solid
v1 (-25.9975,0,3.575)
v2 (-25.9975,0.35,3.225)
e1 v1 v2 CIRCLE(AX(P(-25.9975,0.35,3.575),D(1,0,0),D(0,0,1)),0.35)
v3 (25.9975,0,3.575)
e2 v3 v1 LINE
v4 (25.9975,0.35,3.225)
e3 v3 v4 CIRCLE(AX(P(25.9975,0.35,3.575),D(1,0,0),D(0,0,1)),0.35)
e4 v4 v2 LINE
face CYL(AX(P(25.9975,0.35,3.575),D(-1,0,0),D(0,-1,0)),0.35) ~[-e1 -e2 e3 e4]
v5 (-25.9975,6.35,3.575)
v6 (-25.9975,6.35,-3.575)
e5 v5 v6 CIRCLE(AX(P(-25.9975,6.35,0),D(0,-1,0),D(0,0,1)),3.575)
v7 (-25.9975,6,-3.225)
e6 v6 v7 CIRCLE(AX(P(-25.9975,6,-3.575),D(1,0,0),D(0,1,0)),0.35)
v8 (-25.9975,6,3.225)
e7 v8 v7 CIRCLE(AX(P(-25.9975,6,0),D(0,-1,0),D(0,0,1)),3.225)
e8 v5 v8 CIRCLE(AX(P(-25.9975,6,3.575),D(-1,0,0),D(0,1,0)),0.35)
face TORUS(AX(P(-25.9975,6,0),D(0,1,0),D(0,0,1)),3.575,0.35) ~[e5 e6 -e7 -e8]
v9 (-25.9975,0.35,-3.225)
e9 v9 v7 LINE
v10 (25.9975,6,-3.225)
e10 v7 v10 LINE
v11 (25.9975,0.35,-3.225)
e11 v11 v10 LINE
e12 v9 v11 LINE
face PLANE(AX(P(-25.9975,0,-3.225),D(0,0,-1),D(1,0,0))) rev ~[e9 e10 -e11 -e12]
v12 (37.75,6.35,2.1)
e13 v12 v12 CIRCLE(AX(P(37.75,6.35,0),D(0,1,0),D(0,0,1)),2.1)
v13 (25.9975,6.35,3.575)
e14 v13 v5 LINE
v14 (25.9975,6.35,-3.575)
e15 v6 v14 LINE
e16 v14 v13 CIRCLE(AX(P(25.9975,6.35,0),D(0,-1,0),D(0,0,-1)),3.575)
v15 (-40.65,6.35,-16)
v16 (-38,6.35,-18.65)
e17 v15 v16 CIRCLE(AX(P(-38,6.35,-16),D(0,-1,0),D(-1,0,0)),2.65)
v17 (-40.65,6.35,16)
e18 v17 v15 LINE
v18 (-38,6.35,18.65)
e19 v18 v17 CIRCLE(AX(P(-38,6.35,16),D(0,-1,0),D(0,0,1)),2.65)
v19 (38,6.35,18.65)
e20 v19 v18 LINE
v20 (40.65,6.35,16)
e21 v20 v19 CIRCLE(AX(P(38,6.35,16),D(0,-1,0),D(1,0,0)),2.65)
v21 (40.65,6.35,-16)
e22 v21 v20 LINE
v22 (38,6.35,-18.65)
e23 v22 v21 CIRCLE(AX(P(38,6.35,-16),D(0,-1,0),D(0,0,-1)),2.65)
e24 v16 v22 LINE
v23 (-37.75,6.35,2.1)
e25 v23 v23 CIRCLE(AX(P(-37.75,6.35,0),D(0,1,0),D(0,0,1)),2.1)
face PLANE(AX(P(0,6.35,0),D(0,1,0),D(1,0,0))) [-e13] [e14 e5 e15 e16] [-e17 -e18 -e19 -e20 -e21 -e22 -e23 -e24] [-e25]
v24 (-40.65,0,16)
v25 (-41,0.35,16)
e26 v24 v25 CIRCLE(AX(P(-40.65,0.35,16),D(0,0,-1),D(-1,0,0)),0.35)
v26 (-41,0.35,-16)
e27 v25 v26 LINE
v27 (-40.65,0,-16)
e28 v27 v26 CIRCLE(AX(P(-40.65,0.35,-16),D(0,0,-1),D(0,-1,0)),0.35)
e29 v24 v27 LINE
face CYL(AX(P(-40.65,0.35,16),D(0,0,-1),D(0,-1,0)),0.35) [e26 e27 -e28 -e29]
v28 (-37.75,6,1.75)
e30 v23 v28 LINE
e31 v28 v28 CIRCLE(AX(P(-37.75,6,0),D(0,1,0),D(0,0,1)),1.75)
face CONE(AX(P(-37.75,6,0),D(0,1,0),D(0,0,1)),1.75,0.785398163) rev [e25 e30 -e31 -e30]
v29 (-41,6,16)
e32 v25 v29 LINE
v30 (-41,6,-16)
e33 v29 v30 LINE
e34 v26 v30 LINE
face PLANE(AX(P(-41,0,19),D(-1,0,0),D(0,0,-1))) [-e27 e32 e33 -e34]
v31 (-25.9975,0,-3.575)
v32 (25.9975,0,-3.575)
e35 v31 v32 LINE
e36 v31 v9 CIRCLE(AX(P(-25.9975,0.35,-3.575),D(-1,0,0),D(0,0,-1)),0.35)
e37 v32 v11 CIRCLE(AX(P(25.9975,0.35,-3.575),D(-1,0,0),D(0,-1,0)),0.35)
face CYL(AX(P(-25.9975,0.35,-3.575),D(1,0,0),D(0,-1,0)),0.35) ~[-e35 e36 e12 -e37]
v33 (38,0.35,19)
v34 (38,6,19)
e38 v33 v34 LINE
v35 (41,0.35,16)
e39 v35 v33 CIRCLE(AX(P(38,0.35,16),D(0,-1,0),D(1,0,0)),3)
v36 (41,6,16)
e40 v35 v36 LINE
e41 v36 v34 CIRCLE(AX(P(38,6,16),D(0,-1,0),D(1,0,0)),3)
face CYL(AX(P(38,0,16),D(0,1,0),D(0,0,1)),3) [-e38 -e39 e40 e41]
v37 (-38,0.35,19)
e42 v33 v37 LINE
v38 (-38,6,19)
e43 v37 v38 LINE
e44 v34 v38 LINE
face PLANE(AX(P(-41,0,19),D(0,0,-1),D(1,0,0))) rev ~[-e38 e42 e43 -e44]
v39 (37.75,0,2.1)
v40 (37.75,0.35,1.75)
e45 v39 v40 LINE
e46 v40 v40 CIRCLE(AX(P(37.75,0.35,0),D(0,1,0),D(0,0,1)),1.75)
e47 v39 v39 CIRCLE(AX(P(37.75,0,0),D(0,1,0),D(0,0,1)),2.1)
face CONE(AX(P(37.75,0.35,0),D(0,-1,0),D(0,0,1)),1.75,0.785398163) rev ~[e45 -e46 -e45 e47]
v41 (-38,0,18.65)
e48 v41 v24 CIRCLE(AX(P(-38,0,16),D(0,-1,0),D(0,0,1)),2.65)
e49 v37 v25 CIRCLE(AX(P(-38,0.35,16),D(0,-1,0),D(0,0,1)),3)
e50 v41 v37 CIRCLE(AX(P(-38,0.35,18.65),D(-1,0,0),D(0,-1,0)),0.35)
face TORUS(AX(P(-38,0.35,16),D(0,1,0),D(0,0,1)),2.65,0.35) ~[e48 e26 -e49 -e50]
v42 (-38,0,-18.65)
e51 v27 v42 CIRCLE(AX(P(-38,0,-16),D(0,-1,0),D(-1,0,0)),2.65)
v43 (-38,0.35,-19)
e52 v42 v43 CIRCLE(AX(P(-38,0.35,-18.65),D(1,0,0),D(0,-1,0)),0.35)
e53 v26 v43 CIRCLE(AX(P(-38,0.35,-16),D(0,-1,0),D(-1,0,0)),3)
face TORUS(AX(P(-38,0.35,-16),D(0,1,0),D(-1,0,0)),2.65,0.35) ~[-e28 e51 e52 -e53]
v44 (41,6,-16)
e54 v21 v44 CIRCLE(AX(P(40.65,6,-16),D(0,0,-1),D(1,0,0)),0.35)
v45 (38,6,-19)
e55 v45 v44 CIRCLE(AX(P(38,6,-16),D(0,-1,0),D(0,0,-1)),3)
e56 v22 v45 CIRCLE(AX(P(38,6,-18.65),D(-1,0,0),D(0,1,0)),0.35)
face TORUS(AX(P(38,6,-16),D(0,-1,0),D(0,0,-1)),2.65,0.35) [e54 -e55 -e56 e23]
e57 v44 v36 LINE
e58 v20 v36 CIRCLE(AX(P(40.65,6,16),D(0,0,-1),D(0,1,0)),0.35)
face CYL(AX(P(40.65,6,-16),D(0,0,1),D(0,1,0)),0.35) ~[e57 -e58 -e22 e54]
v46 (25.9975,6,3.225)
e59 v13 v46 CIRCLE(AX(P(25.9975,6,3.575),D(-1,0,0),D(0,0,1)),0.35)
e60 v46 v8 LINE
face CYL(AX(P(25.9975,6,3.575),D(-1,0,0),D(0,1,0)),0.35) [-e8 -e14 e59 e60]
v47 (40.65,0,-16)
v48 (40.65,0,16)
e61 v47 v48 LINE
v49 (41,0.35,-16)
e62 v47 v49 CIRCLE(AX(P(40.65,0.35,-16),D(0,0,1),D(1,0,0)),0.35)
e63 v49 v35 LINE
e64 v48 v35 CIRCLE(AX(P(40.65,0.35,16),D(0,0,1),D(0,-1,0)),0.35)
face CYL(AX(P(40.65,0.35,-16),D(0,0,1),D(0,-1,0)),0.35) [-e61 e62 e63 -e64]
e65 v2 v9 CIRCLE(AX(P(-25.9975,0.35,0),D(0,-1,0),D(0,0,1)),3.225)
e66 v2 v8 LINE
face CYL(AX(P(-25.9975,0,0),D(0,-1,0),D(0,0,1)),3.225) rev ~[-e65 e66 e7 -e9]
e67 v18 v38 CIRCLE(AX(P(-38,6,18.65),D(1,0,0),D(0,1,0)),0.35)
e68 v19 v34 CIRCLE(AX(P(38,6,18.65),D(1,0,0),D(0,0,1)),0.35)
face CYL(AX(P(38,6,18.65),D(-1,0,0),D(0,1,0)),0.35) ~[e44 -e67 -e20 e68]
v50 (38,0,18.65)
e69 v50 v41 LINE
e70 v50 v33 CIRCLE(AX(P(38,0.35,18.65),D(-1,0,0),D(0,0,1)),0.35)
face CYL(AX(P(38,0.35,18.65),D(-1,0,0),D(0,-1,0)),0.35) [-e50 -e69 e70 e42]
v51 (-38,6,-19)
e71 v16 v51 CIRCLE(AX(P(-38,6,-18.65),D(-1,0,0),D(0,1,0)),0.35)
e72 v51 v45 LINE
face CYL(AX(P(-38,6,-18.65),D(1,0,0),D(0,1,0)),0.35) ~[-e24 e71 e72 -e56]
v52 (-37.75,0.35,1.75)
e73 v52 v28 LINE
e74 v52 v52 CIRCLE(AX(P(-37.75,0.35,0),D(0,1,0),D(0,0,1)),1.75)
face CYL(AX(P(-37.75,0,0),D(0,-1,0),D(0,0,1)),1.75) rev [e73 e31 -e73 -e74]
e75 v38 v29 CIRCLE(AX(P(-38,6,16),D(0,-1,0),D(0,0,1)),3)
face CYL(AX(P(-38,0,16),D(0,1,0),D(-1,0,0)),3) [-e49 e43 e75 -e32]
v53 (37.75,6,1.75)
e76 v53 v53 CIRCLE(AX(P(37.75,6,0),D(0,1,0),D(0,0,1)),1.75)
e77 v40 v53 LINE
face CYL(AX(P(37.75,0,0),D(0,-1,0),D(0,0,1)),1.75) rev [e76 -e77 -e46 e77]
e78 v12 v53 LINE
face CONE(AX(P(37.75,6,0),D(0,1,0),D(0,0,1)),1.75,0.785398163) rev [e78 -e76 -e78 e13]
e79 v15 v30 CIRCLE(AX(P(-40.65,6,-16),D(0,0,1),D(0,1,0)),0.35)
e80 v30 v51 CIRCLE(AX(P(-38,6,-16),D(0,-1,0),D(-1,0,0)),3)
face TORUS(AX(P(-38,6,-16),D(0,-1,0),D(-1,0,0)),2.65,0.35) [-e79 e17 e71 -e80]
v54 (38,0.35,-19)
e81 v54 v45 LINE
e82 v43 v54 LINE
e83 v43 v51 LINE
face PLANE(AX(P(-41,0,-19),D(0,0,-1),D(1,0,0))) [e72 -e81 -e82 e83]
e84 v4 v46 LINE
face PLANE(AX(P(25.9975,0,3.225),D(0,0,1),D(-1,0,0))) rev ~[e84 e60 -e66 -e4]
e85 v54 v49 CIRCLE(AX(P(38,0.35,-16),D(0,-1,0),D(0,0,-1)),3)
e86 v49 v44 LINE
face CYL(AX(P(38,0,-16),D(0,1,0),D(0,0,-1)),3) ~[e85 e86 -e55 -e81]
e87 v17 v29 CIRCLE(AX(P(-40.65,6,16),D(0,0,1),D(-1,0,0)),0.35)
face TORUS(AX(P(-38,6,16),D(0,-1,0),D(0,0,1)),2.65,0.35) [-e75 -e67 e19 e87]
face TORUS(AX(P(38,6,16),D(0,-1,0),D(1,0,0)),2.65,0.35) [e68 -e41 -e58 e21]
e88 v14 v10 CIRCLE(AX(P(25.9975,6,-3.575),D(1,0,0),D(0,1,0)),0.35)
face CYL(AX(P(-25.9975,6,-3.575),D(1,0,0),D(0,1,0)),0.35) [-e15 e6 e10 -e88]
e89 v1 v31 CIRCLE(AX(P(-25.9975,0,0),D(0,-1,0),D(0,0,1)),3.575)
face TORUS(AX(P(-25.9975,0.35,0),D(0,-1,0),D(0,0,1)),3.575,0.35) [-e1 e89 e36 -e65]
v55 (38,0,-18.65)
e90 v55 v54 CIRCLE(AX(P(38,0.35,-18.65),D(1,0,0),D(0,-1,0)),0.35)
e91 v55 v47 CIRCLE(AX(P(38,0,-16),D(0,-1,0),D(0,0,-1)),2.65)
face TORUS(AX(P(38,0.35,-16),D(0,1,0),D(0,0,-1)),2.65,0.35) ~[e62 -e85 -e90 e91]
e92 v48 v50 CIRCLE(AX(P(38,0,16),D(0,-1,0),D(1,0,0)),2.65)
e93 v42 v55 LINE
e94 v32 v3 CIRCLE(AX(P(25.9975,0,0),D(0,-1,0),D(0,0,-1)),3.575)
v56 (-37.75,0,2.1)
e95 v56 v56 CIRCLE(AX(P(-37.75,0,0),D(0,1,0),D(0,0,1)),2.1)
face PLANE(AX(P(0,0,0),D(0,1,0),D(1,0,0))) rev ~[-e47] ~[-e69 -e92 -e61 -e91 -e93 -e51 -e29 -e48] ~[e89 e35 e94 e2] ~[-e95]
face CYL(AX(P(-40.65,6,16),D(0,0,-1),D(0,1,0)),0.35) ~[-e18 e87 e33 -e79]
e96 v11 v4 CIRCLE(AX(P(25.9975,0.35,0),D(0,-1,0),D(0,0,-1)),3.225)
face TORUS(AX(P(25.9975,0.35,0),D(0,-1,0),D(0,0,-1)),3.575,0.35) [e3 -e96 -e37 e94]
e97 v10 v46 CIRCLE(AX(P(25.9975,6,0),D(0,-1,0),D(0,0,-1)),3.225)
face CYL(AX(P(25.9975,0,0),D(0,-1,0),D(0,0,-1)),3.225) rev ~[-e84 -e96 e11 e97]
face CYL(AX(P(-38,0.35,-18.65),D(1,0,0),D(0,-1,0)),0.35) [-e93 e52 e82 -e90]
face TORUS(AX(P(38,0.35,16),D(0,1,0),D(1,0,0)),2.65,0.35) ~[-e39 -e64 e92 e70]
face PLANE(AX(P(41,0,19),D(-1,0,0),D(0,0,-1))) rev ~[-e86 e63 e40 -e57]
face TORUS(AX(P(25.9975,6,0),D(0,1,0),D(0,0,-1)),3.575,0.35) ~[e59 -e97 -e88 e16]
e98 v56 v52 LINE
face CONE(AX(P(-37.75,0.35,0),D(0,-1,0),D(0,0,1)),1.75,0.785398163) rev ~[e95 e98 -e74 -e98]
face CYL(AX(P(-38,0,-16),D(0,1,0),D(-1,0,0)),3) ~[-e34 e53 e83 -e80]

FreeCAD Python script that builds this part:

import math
import FreeCAD as App
import Part
import Sketcher


def edges_at(feature, points):
    """Names of the edges that pass closest to the given points."""
    edges = feature.Shape.Edges
    near = lambda p: min(range(len(edges)), key=lambda i: edges[i].distToShape(Part.Vertex(*p))[0])
    return sorted({f"Edge{near(p) + 1}" for p in points})

doc = App.newDocument("Part")
body = doc.addObject("PartDesign::Body", "Body")

sketch1 = body.newObject("Sketcher::SketchObject", "Sketch")
sketch1.AttachmentSupport = (doc.getObject("XZ_Plane"), [""])
sketch1.MapMode = "FlatFace"
sketch1.addGeometry([
    Part.LineSegment(App.Vector(-41, -19, 0), App.Vector(-41, 19, 0)),
    Part.LineSegment(App.Vector(-41, 19, 0), App.Vector(41, 19, 0)),
    Part.LineSegment(App.Vector(41, 19, 0), App.Vector(41, -19, 0)),
    Part.LineSegment(App.Vector(41, -19, 0), App.Vector(-41, -19, 0)),
    Part.Circle(App.Vector(-37.8, 0, 0), App.Vector(0, 0, 1), 1.8),
    Part.ArcOfCircle(Part.Circle(App.Vector(-26, 0, 0), App.Vector(0, 0, 1), 3.2), math.radians(90), math.radians(270)),
    Part.LineSegment(App.Vector(-26, -3.2, 0), App.Vector(26, -3.2, 0)),
    Part.ArcOfCircle(Part.Circle(App.Vector(26, 0, 0), App.Vector(0, 0, 1), 3.2), math.radians(-90), math.radians(90)),
    Part.LineSegment(App.Vector(26, 3.2, 0), App.Vector(-26, 3.2, 0)),
    Part.Circle(App.Vector(37.8, 0, 0), App.Vector(0, 0, 1), 1.8),
], False)
sketch1.addConstraint([
    Sketcher.Constraint("Coincident", 0, 2, 1, 1),
    Sketcher.Constraint("Coincident", 1, 2, 2, 1),
    Sketcher.Constraint("Coincident", 2, 2, 3, 1),
    Sketcher.Constraint("Coincident", 3, 2, 0, 1),
    Sketcher.Constraint("Tangent", 5, 2, 6, 1),
    Sketcher.Constraint("Tangent", 6, 2, 7, 1),
    Sketcher.Constraint("Tangent", 7, 2, 8, 1),
    Sketcher.Constraint("Tangent", 8, 2, 5, 1),
    Sketcher.Constraint("Vertical", 0),
    Sketcher.Constraint("Horizontal", 1),
    Sketcher.Constraint("Vertical", 2),
    Sketcher.Constraint("Horizontal", 3),
    Sketcher.Constraint("Horizontal", 6),
    Sketcher.Constraint("Horizontal", 8),
    Sketcher.Constraint("Equal", 4, 9),
    Sketcher.Constraint("Symmetric", 5, 3, 7, 3, -1, 1),
    Sketcher.Constraint("Symmetric", 4, 3, 9, 3, -1, 1),
    Sketcher.Constraint("Symmetric", 0, 2, 2, 2, -1, 1),
    Sketcher.Constraint("PointOnObject", 4, 3, -1),
    Sketcher.Constraint("Diameter", 4, 3.5),
    Sketcher.Constraint("DistanceX", 1, 1, 1, 2, 82.0),
    Sketcher.Constraint("DistanceY", 0, 1, 0, 2, 38.0),
    Sketcher.Constraint("Radius", 5, 3.225),
    Sketcher.Constraint("DistanceX", 4, 3, 9, 3, 75.5),
    Sketcher.Constraint("DistanceX", 6, 1, 6, 2, 51.995),
])
pad1 = body.newObject("PartDesign::Pad", "Pad")
pad1.Profile = sketch1
pad1.Length = 6.35
pad1.Reversed = True
doc.recompute()

fillet = body.newObject("PartDesign::Fillet", "Fillet")
fillet.Base = (pad1, edges_at(pad1, [
    (-41, 3.175, -19),
    (41, 3.175, -19),
    (41, 3.175, 19),
    (-41, 3.175, 19),
]))
fillet.Radius = 3
doc.recompute()

fillet2 = body.newObject("PartDesign::Fillet", "Fillet001")
fillet2.Base = (fillet, edges_at(fillet, [
    (-29.223, 0, 0),
    (0, 0, 3.225),
    (29.223, 0, 0),
    (0, 0, -3.225),
    (0, 6.35, -3.225),
    (-29.223, 6.35, 0),
    (0, 6.35, 3.225),
    (29.223, 6.35, 0),
    (0, 0, -19),
    (0, 6.35, -19),
    (-41, 0, 0),
    (41, 0, 0),
    (0, 0, 19),
    (-40.121, 0, 18.121),
    (-40.121, 0, -18.121),
    (40.121, 0, 18.121),
    (40.121, 0, -18.121),
    (41, 6.35, 0),
    (-41, 6.35, 0),
    (0, 6.35, 19),
    (-40.121, 6.35, 18.121),
    (-40.121, 6.35, -18.121),
    (40.121, 6.35, 18.121),
    (40.121, 6.35, -18.121),
]))
fillet2.Radius = 0.35
doc.recompute()

chamfer = body.newObject("PartDesign::Chamfer", "Chamfer")
chamfer.Base = (fillet2, edges_at(fillet2, [
    (37.75, 0, -1.75),
    (37.75, 6.35, -1.75),
    (-37.75, 0, -1.75),
    (-37.75, 6.35, -1.75),
]))
chamfer.Size = 0.35

doc.recompute()
